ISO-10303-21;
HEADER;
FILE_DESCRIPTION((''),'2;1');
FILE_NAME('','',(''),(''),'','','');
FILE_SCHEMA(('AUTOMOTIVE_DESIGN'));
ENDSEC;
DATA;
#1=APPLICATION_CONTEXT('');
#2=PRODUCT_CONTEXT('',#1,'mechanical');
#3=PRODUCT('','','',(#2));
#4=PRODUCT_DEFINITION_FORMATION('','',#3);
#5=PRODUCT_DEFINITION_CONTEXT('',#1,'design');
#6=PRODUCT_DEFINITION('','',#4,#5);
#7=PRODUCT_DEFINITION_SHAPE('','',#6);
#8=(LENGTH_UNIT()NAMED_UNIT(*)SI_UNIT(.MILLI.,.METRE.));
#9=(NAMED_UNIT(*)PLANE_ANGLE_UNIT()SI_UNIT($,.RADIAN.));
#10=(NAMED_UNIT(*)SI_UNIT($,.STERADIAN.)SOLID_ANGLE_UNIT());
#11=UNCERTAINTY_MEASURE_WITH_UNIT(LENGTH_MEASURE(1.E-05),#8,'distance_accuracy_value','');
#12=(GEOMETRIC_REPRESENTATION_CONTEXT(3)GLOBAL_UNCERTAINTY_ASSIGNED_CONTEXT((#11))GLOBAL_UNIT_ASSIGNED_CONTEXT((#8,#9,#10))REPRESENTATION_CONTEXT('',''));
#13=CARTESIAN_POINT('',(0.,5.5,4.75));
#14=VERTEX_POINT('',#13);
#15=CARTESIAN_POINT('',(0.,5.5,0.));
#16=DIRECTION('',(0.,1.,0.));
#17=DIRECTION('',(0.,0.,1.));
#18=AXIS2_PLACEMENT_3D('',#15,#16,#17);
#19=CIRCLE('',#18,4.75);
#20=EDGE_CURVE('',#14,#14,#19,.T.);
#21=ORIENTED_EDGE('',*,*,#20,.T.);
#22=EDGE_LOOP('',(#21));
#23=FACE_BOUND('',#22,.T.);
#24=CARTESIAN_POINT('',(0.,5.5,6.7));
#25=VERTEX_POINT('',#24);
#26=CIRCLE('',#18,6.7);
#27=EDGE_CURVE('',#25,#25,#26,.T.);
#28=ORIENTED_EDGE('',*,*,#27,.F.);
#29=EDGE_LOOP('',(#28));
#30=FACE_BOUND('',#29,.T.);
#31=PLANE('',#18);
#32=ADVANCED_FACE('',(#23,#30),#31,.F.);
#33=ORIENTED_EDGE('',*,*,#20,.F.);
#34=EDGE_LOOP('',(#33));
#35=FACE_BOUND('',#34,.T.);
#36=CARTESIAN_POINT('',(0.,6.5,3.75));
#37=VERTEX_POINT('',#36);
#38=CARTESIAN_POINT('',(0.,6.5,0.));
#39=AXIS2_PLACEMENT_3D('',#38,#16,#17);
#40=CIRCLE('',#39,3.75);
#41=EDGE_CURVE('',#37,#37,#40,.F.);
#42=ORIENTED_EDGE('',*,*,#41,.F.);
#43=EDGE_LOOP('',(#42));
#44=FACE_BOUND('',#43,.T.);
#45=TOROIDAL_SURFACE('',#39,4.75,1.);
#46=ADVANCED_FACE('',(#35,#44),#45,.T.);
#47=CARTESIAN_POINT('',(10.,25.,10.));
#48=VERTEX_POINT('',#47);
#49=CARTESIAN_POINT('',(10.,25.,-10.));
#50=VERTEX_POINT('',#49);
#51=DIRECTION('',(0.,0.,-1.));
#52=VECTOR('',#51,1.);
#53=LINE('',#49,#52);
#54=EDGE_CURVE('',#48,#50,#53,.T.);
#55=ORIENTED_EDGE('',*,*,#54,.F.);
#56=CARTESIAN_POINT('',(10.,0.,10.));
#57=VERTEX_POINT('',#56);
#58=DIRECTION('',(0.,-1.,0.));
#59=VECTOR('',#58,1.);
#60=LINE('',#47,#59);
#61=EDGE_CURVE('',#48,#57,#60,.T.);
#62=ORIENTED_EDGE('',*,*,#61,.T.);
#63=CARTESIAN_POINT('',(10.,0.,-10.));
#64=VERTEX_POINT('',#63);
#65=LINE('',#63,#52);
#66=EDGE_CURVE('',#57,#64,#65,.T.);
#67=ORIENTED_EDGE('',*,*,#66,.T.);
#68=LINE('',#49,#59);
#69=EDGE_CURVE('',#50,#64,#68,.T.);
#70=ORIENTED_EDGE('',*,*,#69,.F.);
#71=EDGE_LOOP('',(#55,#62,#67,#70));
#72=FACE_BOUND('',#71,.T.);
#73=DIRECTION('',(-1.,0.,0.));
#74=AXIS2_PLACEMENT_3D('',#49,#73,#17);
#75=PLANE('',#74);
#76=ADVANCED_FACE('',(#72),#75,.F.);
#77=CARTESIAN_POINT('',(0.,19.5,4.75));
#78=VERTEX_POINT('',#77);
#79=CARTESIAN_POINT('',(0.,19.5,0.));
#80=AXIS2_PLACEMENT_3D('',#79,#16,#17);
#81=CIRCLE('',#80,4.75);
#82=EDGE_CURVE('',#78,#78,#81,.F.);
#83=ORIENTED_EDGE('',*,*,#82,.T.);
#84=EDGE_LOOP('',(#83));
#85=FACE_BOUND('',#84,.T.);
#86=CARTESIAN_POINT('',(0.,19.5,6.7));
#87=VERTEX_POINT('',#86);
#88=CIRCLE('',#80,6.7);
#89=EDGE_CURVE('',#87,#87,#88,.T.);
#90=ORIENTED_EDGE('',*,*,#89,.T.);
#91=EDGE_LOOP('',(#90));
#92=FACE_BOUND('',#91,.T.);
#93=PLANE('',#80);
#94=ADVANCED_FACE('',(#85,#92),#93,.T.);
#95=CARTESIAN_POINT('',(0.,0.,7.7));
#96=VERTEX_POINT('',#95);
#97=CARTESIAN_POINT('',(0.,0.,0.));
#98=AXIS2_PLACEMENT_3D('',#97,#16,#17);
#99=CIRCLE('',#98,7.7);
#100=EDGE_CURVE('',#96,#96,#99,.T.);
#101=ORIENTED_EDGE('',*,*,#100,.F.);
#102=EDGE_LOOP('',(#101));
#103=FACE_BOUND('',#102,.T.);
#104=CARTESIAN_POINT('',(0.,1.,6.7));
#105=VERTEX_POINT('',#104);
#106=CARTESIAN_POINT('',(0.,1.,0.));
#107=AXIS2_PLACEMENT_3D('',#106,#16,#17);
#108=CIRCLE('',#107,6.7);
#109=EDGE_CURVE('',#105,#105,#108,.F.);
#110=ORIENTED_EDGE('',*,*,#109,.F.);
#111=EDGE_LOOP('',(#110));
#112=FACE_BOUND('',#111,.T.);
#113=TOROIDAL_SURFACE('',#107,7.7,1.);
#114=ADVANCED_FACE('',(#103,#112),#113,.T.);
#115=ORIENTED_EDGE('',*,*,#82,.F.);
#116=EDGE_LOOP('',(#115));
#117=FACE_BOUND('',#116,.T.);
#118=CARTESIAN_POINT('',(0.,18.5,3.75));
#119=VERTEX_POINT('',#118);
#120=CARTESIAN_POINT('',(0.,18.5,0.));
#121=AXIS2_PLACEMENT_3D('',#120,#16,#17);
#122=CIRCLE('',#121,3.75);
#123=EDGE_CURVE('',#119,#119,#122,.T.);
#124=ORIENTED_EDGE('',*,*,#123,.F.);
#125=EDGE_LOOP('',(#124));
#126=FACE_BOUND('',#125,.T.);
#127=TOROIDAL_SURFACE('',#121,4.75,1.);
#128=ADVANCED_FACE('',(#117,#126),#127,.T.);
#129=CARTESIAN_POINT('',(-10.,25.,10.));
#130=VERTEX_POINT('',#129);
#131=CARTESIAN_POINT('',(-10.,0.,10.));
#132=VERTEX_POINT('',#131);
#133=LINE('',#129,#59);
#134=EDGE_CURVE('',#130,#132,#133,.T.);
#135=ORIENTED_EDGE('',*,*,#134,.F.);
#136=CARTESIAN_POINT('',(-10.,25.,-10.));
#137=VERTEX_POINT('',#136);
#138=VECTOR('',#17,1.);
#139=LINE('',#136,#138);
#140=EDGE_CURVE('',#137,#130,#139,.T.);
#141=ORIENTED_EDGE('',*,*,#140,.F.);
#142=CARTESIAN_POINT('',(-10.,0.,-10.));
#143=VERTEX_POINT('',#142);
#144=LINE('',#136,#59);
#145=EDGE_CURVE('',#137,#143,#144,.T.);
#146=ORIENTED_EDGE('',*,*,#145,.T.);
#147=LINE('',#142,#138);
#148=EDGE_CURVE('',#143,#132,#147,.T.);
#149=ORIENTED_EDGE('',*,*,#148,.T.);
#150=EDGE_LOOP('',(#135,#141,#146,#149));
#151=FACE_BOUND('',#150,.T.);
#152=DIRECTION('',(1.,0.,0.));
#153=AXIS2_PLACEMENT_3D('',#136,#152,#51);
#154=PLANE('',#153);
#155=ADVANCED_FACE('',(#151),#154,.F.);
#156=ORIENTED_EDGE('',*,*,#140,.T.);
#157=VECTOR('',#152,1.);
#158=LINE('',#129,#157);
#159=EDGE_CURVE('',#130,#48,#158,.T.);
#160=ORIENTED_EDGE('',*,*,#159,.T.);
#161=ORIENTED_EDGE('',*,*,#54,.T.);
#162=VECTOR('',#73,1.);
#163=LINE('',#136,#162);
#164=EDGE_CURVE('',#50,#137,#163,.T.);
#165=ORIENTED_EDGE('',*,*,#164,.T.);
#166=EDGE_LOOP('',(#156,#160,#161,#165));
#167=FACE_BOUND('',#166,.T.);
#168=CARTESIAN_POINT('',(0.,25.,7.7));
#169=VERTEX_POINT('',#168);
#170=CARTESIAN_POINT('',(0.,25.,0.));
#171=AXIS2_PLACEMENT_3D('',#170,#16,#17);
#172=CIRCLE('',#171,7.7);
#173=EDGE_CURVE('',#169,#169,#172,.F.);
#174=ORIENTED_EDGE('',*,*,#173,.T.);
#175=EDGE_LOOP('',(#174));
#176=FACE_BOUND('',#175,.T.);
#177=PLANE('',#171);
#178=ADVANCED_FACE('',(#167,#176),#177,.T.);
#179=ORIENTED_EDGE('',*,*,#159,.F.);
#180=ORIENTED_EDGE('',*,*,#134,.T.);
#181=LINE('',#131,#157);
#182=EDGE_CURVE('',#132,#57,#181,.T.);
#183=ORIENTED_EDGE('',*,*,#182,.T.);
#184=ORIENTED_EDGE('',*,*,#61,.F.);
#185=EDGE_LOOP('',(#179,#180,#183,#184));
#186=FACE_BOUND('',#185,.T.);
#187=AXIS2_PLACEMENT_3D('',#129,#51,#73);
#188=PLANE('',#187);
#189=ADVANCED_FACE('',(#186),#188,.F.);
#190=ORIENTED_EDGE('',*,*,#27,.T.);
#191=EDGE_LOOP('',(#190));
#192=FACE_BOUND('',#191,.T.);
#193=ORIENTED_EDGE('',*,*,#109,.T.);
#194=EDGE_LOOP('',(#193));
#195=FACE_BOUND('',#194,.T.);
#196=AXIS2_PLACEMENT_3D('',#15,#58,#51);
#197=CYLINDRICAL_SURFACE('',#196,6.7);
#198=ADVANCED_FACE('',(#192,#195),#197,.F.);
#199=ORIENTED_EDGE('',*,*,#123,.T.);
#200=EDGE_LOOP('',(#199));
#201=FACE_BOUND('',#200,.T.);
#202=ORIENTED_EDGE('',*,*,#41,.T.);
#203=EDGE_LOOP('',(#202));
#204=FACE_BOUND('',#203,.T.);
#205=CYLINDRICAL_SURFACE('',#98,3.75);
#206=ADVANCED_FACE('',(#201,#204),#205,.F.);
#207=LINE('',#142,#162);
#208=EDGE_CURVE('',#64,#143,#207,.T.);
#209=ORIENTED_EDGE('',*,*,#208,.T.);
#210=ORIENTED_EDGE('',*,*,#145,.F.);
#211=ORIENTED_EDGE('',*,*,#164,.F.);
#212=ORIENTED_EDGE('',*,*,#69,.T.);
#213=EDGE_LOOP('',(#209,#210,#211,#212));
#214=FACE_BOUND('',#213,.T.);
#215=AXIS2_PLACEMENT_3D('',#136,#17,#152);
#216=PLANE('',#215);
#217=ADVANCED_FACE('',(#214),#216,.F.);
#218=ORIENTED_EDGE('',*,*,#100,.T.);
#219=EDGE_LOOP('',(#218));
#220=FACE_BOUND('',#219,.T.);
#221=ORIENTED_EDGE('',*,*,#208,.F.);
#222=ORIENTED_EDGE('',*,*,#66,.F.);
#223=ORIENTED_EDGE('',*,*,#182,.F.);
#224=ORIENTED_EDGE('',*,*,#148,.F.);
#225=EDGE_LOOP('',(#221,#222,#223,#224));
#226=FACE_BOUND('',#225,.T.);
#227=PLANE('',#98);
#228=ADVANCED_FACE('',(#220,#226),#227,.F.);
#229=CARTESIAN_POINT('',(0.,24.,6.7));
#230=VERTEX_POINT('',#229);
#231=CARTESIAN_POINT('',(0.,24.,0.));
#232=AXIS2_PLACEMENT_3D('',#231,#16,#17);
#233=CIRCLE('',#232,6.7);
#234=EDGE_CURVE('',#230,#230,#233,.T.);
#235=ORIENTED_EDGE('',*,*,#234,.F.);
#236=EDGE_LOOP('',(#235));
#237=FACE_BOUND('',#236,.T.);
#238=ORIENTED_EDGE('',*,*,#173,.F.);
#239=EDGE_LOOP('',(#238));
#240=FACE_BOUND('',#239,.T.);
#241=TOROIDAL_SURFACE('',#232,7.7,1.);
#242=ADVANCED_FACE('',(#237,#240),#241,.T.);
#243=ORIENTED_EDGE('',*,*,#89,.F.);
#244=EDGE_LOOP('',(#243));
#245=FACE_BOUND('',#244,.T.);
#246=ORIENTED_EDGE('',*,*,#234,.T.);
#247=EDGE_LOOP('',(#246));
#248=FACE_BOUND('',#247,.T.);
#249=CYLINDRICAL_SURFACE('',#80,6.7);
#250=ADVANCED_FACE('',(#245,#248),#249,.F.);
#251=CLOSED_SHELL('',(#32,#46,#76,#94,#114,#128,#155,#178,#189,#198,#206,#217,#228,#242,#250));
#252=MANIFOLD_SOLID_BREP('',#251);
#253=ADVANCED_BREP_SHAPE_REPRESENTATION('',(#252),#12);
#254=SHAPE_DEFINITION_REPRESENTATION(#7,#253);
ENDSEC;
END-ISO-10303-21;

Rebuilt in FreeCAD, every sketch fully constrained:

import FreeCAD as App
import Part
import Sketcher
from FreeCAD import Vector
Q = App.Units.Quantity


def edges_at(feature, points):
    """Names of the edges that pass closest to the given points."""
    edges = feature.Shape.Edges
    near = lambda p: min(range(len(edges)), key=lambda i: edges[i].distToShape(Part.Vertex(*p))[0])
    return sorted({f"Edge{near(p) + 1}" for p in points})

doc = App.newDocument("Part")
params = doc.addObject("Spreadsheet::Sheet", "Params")
for row, (alias, value) in enumerate([
    ("sketch1_width", "20 mm"),
    ("pad1_length", "25 mm"),
    ("sketch2_diameter", "7.5 mm"),
    ("sketch3_diameter", "13.4 mm"),
    ("pocket2_length", "5.5 mm"),
    ("sketch4_diameter", "13.4 mm"),
    ("pocket3_length", "5.5 mm"),
    ("fillet_radius", "1 mm"),
    ("fillet2_radius", "1 mm"),
], start=1):
    params.set(f"A{row}", alias)
    params.set(f"B{row}", "=" + value)
    params.setAlias(f"B{row}", alias)

body = doc.addObject("PartDesign::Body", "Body")

sketch1 = body.newObject("Sketcher::SketchObject", "Sketch")
sketch1.AttachmentSupport = (doc.getObject("XZ_Plane"), [""])
sketch1.MapMode = "FlatFace"
sketch1.addGeometry(Part.LineSegment(Vector(-10, -10, 0), Vector(-10, 10, 0)), False)
sketch1.addGeometry(Part.LineSegment(Vector(-10, 10, 0), Vector(10, 10, 0)), False)
sketch1.addGeometry(Part.LineSegment(Vector(10, 10, 0), Vector(10, -10, 0)), False)
sketch1.addGeometry(Part.LineSegment(Vector(10, -10, 0), Vector(-10, -10, 0)), False)
sketch1.addConstraint(Sketcher.Constraint("Coincident", 0, 2, 1, 1))
sketch1.addConstraint(Sketcher.Constraint("Coincident", 1, 2, 2, 1))
sketch1.addConstraint(Sketcher.Constraint("Coincident", 2, 2, 3, 1))
sketch1.addConstraint(Sketcher.Constraint("Coincident", 3, 2, 0, 1))
sketch1.addConstraint(Sketcher.Constraint("Vertical", 0))
sketch1.addConstraint(Sketcher.Constraint("Horizontal", 1))
sketch1.addConstraint(Sketcher.Constraint("Vertical", 2))
sketch1.addConstraint(Sketcher.Constraint("Horizontal", 3))
sketch1.addConstraint(Sketcher.Constraint("Symmetric", 0, 2, 2, 2, -1, 1))
sketch1.addConstraint(Sketcher.Constraint("Equal", 3, 0))
sketch1.addConstraint(Sketcher.Constraint("DistanceX", 1, 1, 1, 2, Q("20 mm")))
sketch1.setExpression("Constraints[10]", "Params.sketch1_width")
pad1 = body.newObject("PartDesign::Pad", "Pad")
pad1.Profile = sketch1
pad1.setExpression("Length", "Params.pad1_length")
pad1.Reversed = True

sketch2 = body.newObject("Sketcher::SketchObject", "Sketch001")
sketch2.AttachmentSupport = (doc.getObject("XZ_Plane"), [""])
sketch2.MapMode = "FlatFace"
sketch2.AttachmentOffset = App.Placement(Vector(0, 0, -25), App.Rotation())
sketch2.addGeometry(Part.Circle(Vector(0, 0, 0), Vector(0, 0, 1), 3.8), False)
sketch2.addConstraint(Sketcher.Constraint("Coincident", 0, 3, -1, 1))
sketch2.addConstraint(Sketcher.Constraint("Diameter", 0, Q("7.5 mm")))
sketch2.setExpression("Constraints[1]", "Params.sketch2_diameter")
pocket1 = body.newObject("PartDesign::Pocket", "Pocket")
pocket1.Profile = sketch2
pocket1.Type = "ThroughAll"
pocket1.Reversed = True

sketch3 = body.newObject("Sketcher::SketchObject", "Sketch002")
sketch3.AttachmentSupport = (doc.getObject("XZ_Plane"), [""])
sketch3.MapMode = "FlatFace"
sketch3.AttachmentOffset = App.Placement(Vector(0, 0, -25), App.Rotation())
sketch3.addGeometry(Part.Circle(Vector(0, 0, 0), Vector(0, 0, 1), 7), False)
sketch3.addConstraint(Sketcher.Constraint("Coincident", 0, 3, -1, 1))
sketch3.addConstraint(Sketcher.Constraint("Diameter", 0, Q("13.4 mm")))
sketch3.setExpression("Constraints[1]", "Params.sketch3_diameter")
pocket2 = body.newObject("PartDesign::Pocket", "Pocket001")
pocket2.Profile = sketch3
pocket2.setExpression("Length", "Params.pocket2_length")
pocket2.Reversed = True

sketch4 = body.newObject("Sketcher::SketchObject", "Sketch003")
sketch4.AttachmentSupport = (doc.getObject("XZ_Plane"), [""])
sketch4.MapMode = "FlatFace"
sketch4.AttachmentOffset = App.Placement(Vector(0, 0, -5.5), App.Rotation())
sketch4.addGeometry(Part.Circle(Vector(0, 0, 0), Vector(0, 0, 1), 7), False)
sketch4.addConstraint(Sketcher.Constraint("Coincident", 0, 3, -1, 1))
sketch4.addConstraint(Sketcher.Constraint("Diameter", 0, Q("13.4 mm")))
sketch4.setExpression("Constraints[1]", "Params.sketch4_diameter")
pocket3 = body.newObject("PartDesign::Pocket", "Pocket002")
pocket3.Profile = sketch4
pocket3.setExpression("Length", "Params.pocket3_length")
pocket3.Reversed = True
doc.recompute()

fillet = body.newObject("PartDesign::Fillet", "Fillet")
fillet.Base = (pocket3, edges_at(pocket3, [(0, 25, -6.7), (0, 0, -6.7)]))
fillet.setExpression("Radius", "Params.fillet_radius")
doc.recompute()

fillet2 = body.newObject("PartDesign::Fillet", "Fillet001")
fillet2.Base = (fillet, edges_at(fillet, [(0, 19.5, -3.75), (0, 5.5, -3.75)]))
fillet2.setExpression("Radius", "Params.fillet2_radius")

doc.recompute()
